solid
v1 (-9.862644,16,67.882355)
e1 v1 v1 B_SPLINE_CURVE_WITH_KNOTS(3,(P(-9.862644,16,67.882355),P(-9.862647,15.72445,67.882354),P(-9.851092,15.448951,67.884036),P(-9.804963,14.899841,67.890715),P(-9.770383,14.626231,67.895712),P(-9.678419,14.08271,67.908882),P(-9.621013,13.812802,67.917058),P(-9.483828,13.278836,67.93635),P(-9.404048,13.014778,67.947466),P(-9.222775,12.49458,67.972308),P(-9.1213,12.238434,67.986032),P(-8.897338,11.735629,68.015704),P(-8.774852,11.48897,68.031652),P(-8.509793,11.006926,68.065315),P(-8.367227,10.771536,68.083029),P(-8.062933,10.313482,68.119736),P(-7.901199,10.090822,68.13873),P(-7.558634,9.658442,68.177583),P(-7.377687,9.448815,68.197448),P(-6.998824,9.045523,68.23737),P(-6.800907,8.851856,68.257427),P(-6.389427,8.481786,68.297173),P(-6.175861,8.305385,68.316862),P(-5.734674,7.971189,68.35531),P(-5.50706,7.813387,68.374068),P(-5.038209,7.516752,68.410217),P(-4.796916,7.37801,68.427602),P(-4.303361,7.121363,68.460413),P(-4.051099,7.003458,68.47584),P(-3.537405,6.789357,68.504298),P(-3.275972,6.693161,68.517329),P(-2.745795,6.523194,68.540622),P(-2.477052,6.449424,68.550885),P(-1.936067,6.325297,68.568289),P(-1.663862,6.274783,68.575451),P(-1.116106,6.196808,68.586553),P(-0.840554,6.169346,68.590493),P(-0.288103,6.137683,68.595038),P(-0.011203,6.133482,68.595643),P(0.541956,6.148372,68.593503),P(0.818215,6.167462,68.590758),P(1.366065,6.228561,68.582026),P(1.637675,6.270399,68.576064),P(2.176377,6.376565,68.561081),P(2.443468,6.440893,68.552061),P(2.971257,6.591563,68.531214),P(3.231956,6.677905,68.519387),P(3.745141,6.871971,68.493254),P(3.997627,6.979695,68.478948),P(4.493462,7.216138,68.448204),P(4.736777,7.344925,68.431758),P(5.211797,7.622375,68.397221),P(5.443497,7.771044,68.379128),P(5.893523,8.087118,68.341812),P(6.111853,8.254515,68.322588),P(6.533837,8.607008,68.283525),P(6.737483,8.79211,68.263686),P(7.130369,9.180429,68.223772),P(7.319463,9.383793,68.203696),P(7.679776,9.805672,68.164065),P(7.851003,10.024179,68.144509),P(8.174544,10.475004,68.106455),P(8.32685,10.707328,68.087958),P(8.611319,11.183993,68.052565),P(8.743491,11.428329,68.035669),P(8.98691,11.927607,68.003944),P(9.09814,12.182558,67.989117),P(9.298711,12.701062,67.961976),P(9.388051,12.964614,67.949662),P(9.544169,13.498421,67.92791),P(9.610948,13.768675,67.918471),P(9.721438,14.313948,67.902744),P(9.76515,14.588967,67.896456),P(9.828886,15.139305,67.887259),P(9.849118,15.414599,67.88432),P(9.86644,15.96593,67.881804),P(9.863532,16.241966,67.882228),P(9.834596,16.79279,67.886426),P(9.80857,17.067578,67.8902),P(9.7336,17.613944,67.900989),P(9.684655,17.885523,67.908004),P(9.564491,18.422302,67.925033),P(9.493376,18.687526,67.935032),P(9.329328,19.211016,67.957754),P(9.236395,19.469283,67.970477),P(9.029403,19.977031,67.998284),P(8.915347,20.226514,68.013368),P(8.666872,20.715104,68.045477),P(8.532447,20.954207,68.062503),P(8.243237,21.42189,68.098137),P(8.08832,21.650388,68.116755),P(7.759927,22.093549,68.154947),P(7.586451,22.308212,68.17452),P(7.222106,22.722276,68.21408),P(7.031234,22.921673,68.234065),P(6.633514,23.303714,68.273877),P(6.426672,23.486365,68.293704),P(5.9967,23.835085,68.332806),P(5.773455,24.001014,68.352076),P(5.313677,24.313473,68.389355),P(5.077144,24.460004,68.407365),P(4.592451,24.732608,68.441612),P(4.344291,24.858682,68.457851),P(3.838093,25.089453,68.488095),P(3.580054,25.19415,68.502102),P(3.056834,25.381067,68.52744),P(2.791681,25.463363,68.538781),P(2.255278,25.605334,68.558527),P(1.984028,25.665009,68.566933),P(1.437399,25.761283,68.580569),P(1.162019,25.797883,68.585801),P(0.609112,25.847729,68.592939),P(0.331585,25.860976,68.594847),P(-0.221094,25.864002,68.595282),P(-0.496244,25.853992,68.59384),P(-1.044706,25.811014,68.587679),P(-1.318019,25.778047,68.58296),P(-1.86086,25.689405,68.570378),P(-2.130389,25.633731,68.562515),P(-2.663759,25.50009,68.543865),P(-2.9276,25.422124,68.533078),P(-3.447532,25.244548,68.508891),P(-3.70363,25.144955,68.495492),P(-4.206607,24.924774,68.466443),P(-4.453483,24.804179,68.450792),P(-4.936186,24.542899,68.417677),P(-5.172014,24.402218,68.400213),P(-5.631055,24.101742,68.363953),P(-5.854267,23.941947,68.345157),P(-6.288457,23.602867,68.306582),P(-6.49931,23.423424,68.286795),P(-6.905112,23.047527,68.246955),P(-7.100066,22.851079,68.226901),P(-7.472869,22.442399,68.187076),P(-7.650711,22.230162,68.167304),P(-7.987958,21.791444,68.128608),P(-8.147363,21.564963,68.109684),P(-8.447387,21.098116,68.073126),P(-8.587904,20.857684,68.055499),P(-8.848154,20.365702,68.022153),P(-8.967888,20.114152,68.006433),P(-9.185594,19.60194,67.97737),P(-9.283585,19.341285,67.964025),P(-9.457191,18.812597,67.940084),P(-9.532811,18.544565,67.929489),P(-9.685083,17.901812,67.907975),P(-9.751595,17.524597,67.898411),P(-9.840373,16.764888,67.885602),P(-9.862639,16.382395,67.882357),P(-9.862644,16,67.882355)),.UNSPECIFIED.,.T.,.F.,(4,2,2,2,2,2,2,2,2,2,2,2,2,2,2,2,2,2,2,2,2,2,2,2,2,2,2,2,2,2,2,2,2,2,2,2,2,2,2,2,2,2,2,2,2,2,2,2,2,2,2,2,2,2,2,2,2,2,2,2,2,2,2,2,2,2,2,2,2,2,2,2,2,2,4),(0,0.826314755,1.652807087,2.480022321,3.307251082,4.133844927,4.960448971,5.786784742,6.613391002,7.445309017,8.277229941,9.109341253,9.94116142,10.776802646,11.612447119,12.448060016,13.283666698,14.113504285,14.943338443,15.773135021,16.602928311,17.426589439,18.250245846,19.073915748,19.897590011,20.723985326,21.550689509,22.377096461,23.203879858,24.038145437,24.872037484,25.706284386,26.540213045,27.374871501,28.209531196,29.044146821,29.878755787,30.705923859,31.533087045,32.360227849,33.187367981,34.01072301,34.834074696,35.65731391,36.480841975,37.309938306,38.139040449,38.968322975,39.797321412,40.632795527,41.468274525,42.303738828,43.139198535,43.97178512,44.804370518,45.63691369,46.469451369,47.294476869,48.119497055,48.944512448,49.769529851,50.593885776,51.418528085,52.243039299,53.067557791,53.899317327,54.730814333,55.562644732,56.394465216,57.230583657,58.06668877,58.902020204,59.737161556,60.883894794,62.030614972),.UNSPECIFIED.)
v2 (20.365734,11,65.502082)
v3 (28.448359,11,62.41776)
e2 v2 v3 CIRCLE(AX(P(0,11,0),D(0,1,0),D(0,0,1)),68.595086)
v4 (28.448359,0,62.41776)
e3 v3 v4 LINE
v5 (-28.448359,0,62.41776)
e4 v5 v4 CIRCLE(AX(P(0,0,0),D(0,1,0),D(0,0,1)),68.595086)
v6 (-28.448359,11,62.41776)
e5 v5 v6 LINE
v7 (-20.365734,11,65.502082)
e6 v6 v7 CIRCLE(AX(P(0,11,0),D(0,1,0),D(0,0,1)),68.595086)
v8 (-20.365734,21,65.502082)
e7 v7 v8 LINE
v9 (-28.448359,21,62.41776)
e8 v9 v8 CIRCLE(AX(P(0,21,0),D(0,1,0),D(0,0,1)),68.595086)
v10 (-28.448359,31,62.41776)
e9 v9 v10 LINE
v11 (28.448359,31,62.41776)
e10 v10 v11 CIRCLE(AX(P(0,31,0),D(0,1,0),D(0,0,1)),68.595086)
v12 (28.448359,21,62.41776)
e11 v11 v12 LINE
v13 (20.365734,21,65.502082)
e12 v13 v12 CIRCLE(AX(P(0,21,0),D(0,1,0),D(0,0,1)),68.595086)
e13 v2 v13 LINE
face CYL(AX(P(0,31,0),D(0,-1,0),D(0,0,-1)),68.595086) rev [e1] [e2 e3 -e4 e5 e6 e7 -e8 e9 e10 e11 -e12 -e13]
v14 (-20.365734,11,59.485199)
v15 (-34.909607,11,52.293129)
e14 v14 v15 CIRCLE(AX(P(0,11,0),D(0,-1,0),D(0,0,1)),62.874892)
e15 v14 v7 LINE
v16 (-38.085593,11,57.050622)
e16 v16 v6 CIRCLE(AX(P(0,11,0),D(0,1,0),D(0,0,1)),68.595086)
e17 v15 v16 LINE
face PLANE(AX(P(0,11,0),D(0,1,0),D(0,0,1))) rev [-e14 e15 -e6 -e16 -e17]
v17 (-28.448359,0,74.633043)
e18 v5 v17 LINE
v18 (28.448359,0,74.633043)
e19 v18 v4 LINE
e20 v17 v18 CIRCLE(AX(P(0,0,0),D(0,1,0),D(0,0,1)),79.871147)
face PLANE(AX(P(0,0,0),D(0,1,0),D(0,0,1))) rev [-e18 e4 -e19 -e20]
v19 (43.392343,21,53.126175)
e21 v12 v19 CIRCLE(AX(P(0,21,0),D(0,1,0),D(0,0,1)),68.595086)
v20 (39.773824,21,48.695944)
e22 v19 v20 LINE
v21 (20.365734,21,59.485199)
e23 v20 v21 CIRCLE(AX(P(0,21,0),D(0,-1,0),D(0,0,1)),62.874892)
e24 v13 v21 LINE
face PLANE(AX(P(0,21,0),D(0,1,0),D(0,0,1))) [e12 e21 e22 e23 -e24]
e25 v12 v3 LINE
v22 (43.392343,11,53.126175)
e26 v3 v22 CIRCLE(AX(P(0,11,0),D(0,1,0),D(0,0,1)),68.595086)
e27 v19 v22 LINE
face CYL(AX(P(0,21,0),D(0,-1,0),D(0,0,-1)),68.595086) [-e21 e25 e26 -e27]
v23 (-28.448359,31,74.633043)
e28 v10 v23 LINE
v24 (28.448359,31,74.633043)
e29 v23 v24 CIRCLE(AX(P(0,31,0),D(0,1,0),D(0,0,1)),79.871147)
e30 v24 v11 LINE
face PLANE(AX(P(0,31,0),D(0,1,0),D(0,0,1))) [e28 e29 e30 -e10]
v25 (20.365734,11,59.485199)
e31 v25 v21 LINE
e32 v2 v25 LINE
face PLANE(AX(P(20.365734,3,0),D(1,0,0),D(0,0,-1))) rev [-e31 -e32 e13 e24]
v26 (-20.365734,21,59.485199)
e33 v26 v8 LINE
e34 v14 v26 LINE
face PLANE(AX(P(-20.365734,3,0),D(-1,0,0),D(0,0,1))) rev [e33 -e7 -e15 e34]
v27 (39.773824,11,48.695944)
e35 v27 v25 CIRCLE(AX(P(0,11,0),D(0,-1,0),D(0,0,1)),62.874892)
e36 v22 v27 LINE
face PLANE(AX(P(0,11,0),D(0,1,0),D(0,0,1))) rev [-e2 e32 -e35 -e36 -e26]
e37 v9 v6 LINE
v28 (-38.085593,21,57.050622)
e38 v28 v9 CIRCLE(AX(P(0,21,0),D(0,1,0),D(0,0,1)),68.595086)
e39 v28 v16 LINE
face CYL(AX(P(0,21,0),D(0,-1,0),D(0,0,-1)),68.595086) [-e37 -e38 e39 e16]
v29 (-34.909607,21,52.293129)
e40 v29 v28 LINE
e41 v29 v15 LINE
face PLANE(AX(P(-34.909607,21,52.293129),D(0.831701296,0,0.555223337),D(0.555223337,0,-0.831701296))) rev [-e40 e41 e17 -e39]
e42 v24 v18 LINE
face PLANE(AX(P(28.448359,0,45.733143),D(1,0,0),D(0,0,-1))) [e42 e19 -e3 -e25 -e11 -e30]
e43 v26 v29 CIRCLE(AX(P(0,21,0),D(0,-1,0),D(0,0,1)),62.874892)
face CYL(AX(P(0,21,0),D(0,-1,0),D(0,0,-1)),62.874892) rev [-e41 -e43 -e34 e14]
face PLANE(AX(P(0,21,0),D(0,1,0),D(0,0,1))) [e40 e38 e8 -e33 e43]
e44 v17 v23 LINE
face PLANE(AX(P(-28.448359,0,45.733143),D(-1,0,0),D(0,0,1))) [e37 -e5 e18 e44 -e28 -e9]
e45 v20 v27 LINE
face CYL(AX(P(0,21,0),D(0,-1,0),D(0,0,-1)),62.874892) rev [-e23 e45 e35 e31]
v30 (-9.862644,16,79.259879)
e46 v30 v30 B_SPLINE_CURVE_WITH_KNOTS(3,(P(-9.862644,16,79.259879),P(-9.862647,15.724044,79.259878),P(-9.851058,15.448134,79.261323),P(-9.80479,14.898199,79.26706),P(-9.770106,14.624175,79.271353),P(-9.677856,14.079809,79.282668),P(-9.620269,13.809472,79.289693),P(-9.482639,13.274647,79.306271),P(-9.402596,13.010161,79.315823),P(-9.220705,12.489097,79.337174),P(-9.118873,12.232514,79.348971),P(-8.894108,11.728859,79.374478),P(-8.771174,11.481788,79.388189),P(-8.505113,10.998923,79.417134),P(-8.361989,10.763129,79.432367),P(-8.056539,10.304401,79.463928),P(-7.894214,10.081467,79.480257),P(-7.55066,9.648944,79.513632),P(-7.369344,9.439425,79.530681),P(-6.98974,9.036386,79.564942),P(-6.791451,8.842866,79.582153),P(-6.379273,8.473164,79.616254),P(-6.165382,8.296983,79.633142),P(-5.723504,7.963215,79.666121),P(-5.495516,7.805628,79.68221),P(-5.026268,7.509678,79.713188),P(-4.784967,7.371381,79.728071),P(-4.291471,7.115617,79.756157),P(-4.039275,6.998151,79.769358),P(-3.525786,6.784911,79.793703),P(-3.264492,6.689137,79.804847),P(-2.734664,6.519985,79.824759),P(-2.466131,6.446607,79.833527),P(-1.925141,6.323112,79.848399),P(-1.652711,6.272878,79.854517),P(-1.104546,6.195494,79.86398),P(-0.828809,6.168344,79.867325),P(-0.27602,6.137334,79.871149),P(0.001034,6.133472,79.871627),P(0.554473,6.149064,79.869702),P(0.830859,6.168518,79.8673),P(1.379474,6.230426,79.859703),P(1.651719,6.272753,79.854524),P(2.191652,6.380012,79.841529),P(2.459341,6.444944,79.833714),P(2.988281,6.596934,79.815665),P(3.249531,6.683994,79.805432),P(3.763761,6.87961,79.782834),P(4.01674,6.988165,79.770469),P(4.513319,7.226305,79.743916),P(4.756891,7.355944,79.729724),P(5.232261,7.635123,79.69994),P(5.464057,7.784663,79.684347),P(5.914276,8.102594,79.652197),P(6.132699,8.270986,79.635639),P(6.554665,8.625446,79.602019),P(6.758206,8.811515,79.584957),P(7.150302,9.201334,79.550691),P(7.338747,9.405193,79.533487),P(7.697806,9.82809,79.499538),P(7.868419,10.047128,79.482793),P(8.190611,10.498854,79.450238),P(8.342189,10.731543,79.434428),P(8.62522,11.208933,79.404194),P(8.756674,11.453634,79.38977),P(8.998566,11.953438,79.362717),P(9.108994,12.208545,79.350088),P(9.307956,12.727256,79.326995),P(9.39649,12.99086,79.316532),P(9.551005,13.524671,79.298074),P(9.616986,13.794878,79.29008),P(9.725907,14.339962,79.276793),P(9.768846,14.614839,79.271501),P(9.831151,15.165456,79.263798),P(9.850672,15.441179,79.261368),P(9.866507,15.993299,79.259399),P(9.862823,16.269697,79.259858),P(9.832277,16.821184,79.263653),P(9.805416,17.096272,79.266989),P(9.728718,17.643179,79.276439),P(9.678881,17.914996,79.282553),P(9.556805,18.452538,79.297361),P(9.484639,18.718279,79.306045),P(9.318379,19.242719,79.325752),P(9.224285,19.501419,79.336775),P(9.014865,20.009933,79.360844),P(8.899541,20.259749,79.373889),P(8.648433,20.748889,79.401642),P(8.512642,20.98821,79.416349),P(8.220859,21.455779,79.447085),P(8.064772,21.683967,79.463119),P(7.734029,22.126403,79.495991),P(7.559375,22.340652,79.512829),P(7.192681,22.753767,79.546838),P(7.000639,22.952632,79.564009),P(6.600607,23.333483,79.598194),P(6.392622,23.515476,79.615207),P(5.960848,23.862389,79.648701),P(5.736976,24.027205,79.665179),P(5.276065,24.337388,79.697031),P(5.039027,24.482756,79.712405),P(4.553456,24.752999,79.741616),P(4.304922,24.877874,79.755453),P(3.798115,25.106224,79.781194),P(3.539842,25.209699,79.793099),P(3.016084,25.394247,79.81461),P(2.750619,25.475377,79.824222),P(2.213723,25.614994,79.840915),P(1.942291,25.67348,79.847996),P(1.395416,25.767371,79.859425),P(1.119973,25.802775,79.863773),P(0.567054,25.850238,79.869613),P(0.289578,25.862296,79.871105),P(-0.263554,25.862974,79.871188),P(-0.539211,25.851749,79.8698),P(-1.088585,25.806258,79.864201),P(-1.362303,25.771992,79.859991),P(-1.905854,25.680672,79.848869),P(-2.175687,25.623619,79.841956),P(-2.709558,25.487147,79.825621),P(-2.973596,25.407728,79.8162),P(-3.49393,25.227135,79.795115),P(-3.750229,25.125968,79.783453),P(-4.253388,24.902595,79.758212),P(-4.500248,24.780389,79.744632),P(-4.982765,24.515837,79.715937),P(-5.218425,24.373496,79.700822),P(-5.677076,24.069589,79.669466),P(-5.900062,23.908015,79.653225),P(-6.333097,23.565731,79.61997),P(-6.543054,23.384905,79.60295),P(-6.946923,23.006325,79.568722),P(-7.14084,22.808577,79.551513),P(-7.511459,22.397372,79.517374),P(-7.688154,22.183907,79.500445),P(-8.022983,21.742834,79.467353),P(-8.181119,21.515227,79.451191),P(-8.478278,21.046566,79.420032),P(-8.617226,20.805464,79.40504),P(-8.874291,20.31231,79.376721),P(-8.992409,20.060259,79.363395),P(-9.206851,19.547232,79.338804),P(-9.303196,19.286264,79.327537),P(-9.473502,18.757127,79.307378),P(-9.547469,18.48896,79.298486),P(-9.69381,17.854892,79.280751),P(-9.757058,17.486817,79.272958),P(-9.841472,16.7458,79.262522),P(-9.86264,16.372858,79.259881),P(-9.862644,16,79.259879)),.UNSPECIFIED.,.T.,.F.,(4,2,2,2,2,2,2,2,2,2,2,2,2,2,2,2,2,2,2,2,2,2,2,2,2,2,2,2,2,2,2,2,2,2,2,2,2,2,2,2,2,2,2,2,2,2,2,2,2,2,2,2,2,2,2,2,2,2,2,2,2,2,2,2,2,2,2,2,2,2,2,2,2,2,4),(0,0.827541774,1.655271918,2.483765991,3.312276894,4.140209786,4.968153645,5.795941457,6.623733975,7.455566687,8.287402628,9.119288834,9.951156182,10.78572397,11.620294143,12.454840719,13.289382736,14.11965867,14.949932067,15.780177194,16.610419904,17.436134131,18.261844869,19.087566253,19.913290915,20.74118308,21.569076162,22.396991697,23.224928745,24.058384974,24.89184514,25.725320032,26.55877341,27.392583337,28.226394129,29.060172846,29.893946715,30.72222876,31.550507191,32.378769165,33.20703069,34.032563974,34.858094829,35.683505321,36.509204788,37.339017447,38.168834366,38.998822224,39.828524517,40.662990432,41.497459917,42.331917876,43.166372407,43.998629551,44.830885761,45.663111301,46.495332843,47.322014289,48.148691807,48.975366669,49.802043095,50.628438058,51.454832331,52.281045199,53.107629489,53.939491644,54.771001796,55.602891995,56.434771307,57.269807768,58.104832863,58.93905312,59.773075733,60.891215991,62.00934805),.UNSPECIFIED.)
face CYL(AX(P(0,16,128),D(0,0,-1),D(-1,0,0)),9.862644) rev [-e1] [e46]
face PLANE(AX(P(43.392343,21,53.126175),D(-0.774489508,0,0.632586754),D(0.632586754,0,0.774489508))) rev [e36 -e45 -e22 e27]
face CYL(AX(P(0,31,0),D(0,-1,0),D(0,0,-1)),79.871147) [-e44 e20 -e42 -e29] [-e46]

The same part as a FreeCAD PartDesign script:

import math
import FreeCAD as App
import Part
import Sketcher
from FreeCAD import Vector

doc = App.newDocument("Part")
params = doc.addObject("Spreadsheet::Sheet", "Params")
for row, (alias, value) in enumerate([
    ("pad1_length", "31 mm"),
    ("pocket1_length", "31 mm"),
    ("pad2_length", "10 mm"),
    ("pocket2_length", "18 mm"),
    ("pocket3_length", "128 mm"),
], start=1):
    params.set(f"A{row}", alias)
    params.set(f"B{row}", "=" + value)
    params.setAlias(f"B{row}", alias)

body = doc.addObject("PartDesign::Body", "Body")

# Sketch on XZ plane
sketch1 = doc.addObject("Sketcher::SketchObject", "Sketch")
body.addObject(sketch1)
sketch1.AttachmentSupport = (doc.XZ_Plane, [""])
sketch1.MapMode = "FlatFace"
sketch1.addGeometry([
    Part.Circle(Vector(0, 0, 0), Vector(0, 0, 1), 80),
    Part.Circle(Vector(0, 0, 0), Vector(0, 0, 1), 69),
], False)
sketch1.addConstraint([
    Sketcher.Constraint("Coincident", 0, 3, -1, 1),
    Sketcher.Constraint("Coincident", 1, 3, -1, 1),
    Sketcher.Constraint("Diameter", 0, 159.742295),
    Sketcher.Constraint("Diameter", 1, 137.190173),
])
pad1 = doc.addObject("PartDesign::Pad", "Pad")
body.addObject(pad1)
pad1.Profile = sketch1
pad1.setExpression("Length", "Params.pad1_length")
pad1.Reversed = True

# Sketch on XZ plane
sketch2 = doc.addObject("Sketcher::SketchObject", "Sketch001")
body.addObject(sketch2)
sketch2.AttachmentSupport = (doc.XZ_Plane, [""])
sketch2.MapMode = "FlatFace"
sketch2.AttachmentOffset = App.Placement(Vector(0, 0, -31), App.Rotation())
sketch2.addGeometry([
    Part.LineSegment(Vector(-127, -97, 0), Vector(-127, 126, 0)),  # 0
    Part.LineSegment(Vector(-127, 126, 0), Vector(106, 126, 0)),  # 1
    Part.LineSegment(Vector(106, 126, 0), Vector(106, -97, 0)),  # 2
    Part.LineSegment(Vector(106, -97, 0), Vector(-127, -97, 0)),  # 3
    Part.LineSegment(Vector(28, 91, 0), Vector(-28, 91, 0)),  # 4
    Part.LineSegment(Vector(-28, 91, 0), Vector(-28, 46, 0)),  # 5
    Part.LineSegment(Vector(-28, 46, 0), Vector(28, 46, 0)),  # 6
    Part.LineSegment(Vector(28, 46, 0), Vector(28, 91, 0)),  # 7
], False)
sketch2.addConstraint([
    Sketcher.Constraint("Coincident", 0, 2, 1, 1),
    Sketcher.Constraint("Coincident", 1, 2, 2, 1),
    Sketcher.Constraint("Coincident", 2, 2, 3, 1),
    Sketcher.Constraint("Coincident", 3, 2, 0, 1),
    Sketcher.Constraint("Coincident", 4, 2, 5, 1),
    Sketcher.Constraint("Coincident", 5, 2, 6, 1),
    Sketcher.Constraint("Coincident", 6, 2, 7, 1),
    Sketcher.Constraint("Coincident", 7, 2, 4, 1),
    Sketcher.Constraint("Vertical", 0),
    Sketcher.Constraint("Horizontal", 1),
    Sketcher.Constraint("Vertical", 2),
    Sketcher.Constraint("Horizontal", 3),
    Sketcher.Constraint("Horizontal", 4),
    Sketcher.Constraint("Vertical", 5),
    Sketcher.Constraint("Horizontal", 6),
    Sketcher.Constraint("Vertical", 7),
    Sketcher.Constraint("DistanceX", 1, 1, 1, 2, 233.196891),
    Sketcher.Constraint("DistanceX", 4, 2, 4, 1, 56.896719),
    Sketcher.Constraint("DistanceY", 0, 1, 0, 2, 222.597032),
    Sketcher.Constraint("DistanceX", 0, 2, 6, 2, 155.1858),
    Sketcher.Constraint("DistanceY", 5, 2, 5, 1, 45.723887),
    Sketcher.Constraint("DistanceX", 0, 2, -1, 1, 126.737441),
    Sketcher.Constraint("DistanceY", -1, 1, 4, 2, 91.45703),
    Sketcher.Constraint("DistanceY", 3, 2, 5, 2, 142.284029),
])
pocket1 = doc.addObject("PartDesign::Pocket", "Pocket")
body.addObject(pocket1)
pocket1.Profile = sketch2
pocket1.setExpression("Length", "Params.pocket1_length")
pocket1.Reversed = True

# Sketch on XZ plane
sketch3 = doc.addObject("Sketcher::SketchObject", "Sketch002")
body.addObject(sketch3)
sketch3.AttachmentSupport = (doc.XZ_Plane, [""])
sketch3.MapMode = "FlatFace"
sketch3.AttachmentOffset = App.Placement(Vector(0, 0, -16), App.Rotation())
sketch3.addGeometry([
    Part.LineSegment(Vector(43, 53, 0), Vector(40, 49, 0)),
    Part.ArcOfCircle(Part.Circle(Vector(0, 0, 0), Vector(0, 0, 1), 63), math.radians(51), math.radians(124)),
    Part.LineSegment(Vector(-35, 52, 0), Vector(-38, 57, 0)),
    Part.ArcOfCircle(Part.Circle(Vector(0, 0, 0), Vector(0, 0, 1), 69), math.radians(51), math.radians(124)),
], False)
sketch3.addConstraint([
    Sketcher.Constraint("Coincident", 0, 2, 1, 1),
    Sketcher.Constraint("Coincident", 1, 2, 2, 1),
    Sketcher.Constraint("Coincident", 2, 2, 3, 2),
    Sketcher.Constraint("Coincident", 3, 1, 0, 1),
    Sketcher.Constraint("Coincident", 1, 3, -1, 1),
    Sketcher.Constraint("Coincident", 3, 3, -1, 1),
    Sketcher.Constraint("Radius", 1, 62.874892),
    Sketcher.Constraint("Radius", 3, 68.595086),
    Sketcher.Constraint("DistanceY", -1, 1, 1, 2, 52.293129),
    Sketcher.Constraint("DistanceX", 1, 2, 0, 2, 74.683431),
    Sketcher.Constraint("DistanceY", 0, 2, 2, 2, 8.354678),
    Sketcher.Constraint("DistanceX", 0, 2, 3, 1, 3.618519),
])
pad2 = doc.addObject("PartDesign::Pad", "Pad001")
body.addObject(pad2)
pad2.Profile = sketch3
pad2.setExpression("Length", "Params.pad2_length")
pad2.Midplane = True

# Sketch on XZ plane
sketch4 = doc.addObject("Sketcher::SketchObject", "Sketch003")
body.addObject(sketch4)
sketch4.AttachmentSupport = (doc.XZ_Plane, [""])
sketch4.MapMode = "FlatFace"
sketch4.AttachmentOffset = App.Placement(Vector(0, 0, -21), App.Rotation())
sketch4.addGeometry([
    Part.ArcOfCircle(Part.Circle(Vector(0, 0, 0), Vector(0, 0, 1), 69), math.radians(73), math.radians(107)),
    Part.LineSegment(Vector(20, 66, 0), Vector(20, 59, 0)),
    Part.ArcOfCircle(Part.Circle(Vector(0, 0, 0), Vector(0, 0, 1), 63), math.radians(71), math.radians(109)),
    Part.LineSegment(Vector(-20, 59, 0), Vector(-20, 66, 0)),
], False)
sketch4.addConstraint([
    Sketcher.Constraint("Coincident", 0, 1, 1, 1),
    Sketcher.Constraint("Coincident", 1, 2, 2, 1),
    Sketcher.Constraint("Coincident", 2, 2, 3, 1),
    Sketcher.Constraint("Coincident", 3, 2, 0, 2),
    Sketcher.Constraint("Vertical", 1),
    Sketcher.Constraint("Vertical", 3),
    Sketcher.Constraint("Coincident", 0, 3, -1, 1),
    Sketcher.Constraint("Coincident", 2, 3, -1, 1),
    Sketcher.Constraint("Horizontal", 1, 2, 2, 2),
    Sketcher.Constraint("Radius", 2, 62.874892),
    Sketcher.Constraint("Radius", 0, 68.595086),
    Sketcher.Constraint("DistanceY", -1, 1, 1, 2, 59.485199),
])
pocket2 = doc.addObject("PartDesign::Pocket", "Pocket001")
body.addObject(pocket2)
pocket2.Profile = sketch4
pocket2.setExpression("Length", "Params.pocket2_length")
pocket2.Reversed = True

# Sketch on XY plane
sketch5 = doc.addObject("Sketcher::SketchObject", "Sketch004")
body.addObject(sketch5)
sketch5.AttachmentSupport = (doc.XY_Plane, [""])
sketch5.MapMode = "FlatFace"
sketch5.addGeometry(Part.Circle(Vector(0, 16, 0), Vector(0, 0, 1), 10), False)
sketch5.addConstraint([
    Sketcher.Constraint("PointOnObject", 0, 3, -2),
    Sketcher.Constraint("DistanceY", -1, 1, 0, 3, 16.0),
    Sketcher.Constraint("Diameter", 0, 19.725288),
])
pocket3 = doc.addObject("PartDesign::Pocket", "Pocket002")
body.addObject(pocket3)
pocket3.Profile = sketch5
pocket3.setExpression("Length", "Params.pocket3_length")
pocket3.Reversed = True

doc.recompute()
